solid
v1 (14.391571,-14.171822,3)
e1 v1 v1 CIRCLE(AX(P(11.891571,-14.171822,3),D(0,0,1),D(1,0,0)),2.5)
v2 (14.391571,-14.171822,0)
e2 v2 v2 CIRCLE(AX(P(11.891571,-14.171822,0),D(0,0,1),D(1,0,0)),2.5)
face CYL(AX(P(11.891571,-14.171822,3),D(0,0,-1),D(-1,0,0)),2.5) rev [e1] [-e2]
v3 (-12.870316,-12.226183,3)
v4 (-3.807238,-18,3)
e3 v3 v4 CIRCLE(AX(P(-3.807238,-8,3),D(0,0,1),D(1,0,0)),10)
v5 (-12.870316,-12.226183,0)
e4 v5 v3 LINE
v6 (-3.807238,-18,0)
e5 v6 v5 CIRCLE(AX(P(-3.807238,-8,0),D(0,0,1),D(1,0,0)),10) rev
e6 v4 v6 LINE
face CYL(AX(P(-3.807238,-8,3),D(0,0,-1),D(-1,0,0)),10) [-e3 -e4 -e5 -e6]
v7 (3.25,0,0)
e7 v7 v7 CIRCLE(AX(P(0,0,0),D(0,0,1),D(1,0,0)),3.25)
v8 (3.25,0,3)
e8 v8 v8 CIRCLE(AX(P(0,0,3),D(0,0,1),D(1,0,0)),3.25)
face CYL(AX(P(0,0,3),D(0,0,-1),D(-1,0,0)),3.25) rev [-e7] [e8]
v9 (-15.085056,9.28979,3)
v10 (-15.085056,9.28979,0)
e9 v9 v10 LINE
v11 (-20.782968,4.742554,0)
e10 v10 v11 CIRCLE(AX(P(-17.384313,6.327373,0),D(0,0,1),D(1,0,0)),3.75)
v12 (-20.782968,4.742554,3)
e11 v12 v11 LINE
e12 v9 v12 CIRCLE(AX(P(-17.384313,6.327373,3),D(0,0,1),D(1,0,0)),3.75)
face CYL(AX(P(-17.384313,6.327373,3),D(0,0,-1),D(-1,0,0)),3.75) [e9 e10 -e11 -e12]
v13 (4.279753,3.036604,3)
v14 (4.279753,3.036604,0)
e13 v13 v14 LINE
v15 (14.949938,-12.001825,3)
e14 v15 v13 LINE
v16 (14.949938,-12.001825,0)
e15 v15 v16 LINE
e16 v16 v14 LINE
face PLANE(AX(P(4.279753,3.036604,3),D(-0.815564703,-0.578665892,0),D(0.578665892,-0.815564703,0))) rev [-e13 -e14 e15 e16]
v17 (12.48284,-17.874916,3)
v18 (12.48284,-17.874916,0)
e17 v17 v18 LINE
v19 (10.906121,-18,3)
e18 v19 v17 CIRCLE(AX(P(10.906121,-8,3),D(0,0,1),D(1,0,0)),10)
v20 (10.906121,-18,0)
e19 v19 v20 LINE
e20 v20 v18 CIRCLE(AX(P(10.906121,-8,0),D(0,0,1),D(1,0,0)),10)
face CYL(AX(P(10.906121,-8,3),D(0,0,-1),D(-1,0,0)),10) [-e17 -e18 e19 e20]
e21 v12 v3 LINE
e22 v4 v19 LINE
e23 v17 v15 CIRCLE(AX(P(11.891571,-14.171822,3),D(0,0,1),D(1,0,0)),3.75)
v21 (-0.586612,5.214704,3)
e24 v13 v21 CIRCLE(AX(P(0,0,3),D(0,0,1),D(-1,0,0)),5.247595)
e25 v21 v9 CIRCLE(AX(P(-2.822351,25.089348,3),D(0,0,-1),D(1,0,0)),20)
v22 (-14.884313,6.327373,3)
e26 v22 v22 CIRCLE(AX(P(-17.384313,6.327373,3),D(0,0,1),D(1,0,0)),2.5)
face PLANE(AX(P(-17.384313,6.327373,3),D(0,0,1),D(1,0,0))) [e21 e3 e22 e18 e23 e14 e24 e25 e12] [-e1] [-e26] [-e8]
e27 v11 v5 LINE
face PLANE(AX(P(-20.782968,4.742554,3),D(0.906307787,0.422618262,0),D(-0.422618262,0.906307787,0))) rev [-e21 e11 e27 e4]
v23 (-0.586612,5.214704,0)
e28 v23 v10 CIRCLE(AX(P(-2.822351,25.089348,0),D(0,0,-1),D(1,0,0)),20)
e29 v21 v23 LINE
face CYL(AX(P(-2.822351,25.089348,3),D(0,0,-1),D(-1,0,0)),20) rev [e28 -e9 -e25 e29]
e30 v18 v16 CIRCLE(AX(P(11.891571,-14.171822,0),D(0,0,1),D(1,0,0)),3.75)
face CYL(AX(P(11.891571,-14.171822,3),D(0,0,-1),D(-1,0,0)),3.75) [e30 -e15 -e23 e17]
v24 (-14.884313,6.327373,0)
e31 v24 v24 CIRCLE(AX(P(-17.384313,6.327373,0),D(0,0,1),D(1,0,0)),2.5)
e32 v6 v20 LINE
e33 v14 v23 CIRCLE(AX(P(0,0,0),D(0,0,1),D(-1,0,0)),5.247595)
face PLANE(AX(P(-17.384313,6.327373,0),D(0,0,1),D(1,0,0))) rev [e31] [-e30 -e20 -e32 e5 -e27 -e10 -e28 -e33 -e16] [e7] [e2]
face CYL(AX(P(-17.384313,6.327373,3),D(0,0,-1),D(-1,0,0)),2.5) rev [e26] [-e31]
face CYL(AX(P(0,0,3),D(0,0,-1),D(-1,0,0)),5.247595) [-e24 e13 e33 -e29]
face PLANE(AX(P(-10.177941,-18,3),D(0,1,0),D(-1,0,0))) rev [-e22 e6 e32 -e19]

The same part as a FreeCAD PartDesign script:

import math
import FreeCAD as App
import Part
import Sketcher
Q = App.Units.Quantity


def edges_at(feature, points):
    """Names of the edges that pass closest to the given points."""
    edges = feature.Shape.Edges
    near = lambda p: min(range(len(edges)), key=lambda i: edges[i].distToShape(Part.Vertex(*p))[0])
    return sorted({f"Edge{near(p) + 1}" for p in points})

doc = App.newDocument("Part")
params = doc.addObject("Spreadsheet::Sheet", "Params")
for row, (alias, value) in enumerate([
    ("sketch1_diameter", "5 mm"),
    ("sketch1_radius", "10 mm"),
    ("sketch1_radius2", "20 mm"),
    ("sketch1_diameter2", "6.5 mm"),
    ("sketch1_radius3", "3.75 mm"),
    ("pad1_length", "3 mm"),
    ("fillet_radius", "10 mm"),
], start=1):
    params.set(f"A{row}", alias)
    params.set(f"B{row}", "=" + value)
    params.setAlias(f"B{row}", alias)

body = doc.addObject("PartDesign::Body", "Body")

sketch1 = body.newObject("Sketcher::SketchObject", "Sketch")
sketch1.AttachmentSupport = (doc.getObject("XY_Plane"), [""])
sketch1.MapMode = "FlatFace"
sketch1.addGeometry([
    Part.LineSegment(App.Vector(-10.2, -18, 0), App.Vector(10.9, -18, 0)),
    Part.ArcOfCircle(Part.Circle(App.Vector(10.9, -8, 0), App.Vector(0, 0, 1), 10), math.radians(-90), math.radians(-80.93)),
    Part.ArcOfCircle(Part.Circle(App.Vector(11.9, -14.2, 0), App.Vector(0, 0, 1), 3.7), math.radians(-81), math.radians(35)),
    Part.LineSegment(App.Vector(14.9, -12, 0), App.Vector(4.3, 3, 0)),
    Part.ArcOfCircle(Part.Circle(App.Vector(0, 0, 0), App.Vector(0, 0, 1), 5.2), math.radians(35), math.radians(96)),
    Part.ArcOfCircle(Part.Circle(App.Vector(-2.8, 25.1, 0), App.Vector(0, 0, 1), 20), math.radians(-128), math.radians(-84)),
    Part.ArcOfCircle(Part.Circle(App.Vector(-17.4, 6.3, 0), App.Vector(0, 0, 1), 3.8), math.radians(52), math.radians(205)),
    Part.LineSegment(App.Vector(-20.8, 4.7, 0), App.Vector(-10.2, -18, 0)),
    Part.Circle(App.Vector(11.9, -14.2, 0), App.Vector(0, 0, 1), 2.5),
    Part.Circle(App.Vector(-17.4, 6.3, 0), App.Vector(0, 0, 1), 2.5),
    Part.Circle(App.Vector(0, 0, 0), App.Vector(0, 0, 1), 3.2),
], False)
sketch1.addConstraint([
    Sketcher.Constraint("Tangent", 0, 2, 1, 1),
    Sketcher.Constraint("Tangent", 1, 2, 2, 1),
    Sketcher.Constraint("Tangent", 2, 2, 3, 1),
    Sketcher.Constraint("Tangent", 3, 2, 4, 1),
    Sketcher.Constraint("Tangent", 4, 2, 5, 2),
    Sketcher.Constraint("Tangent", 5, 1, 6, 1),
    Sketcher.Constraint("Tangent", 6, 2, 7, 1),
    Sketcher.Constraint("Coincident", 7, 2, 0, 1),
    Sketcher.Constraint("Horizontal", 0),
    Sketcher.Constraint("Coincident", 4, 3, -1, 1),
    Sketcher.Constraint("Coincident", 10, 3, -1, 1),
    Sketcher.Constraint("Coincident", 8, 3, 2, 3),
    Sketcher.Constraint("Coincident", 9, 3, 6, 3),
    Sketcher.Constraint("Equal", 2, 6),
    Sketcher.Constraint("Equal", 8, 9),
    Sketcher.Constraint("Diameter", 8, 5.0),
    Sketcher.Constraint("Radius", 1, 10.0),
    Sketcher.Constraint("Radius", 5, 20.0),
    Sketcher.Constraint("Diameter", 10, 6.5),
    Sketcher.Constraint("Angle", 7, Q("-65 deg")),
    Sketcher.Constraint("Radius", 2, 3.75),
    Sketcher.Constraint("DistanceY", 1, 3, -1, 1, 8.0),
    Sketcher.Constraint("Radius", 4, 5.247595),
    Sketcher.Constraint("DistanceX", 0, 1, 0, 2, 21.084062),
    Sketcher.Constraint("DistanceY", 3, 2, 4, 2, 2.1781),
    Sketcher.Constraint("DistanceX", 6, 3, 4, 2, 16.797701),
    Sketcher.Constraint("DistanceX", -1, 1, 1, 3, 10.906121),
])
sketch1.setExpression("Constraints[15]", "Params.sketch1_diameter")
sketch1.setExpression("Constraints[16]", "Params.sketch1_radius")
sketch1.setExpression("Constraints[17]", "Params.sketch1_radius2")
sketch1.setExpression("Constraints[18]", "Params.sketch1_diameter2")
sketch1.setExpression("Constraints[20]", "Params.sketch1_radius3")
pad1 = body.newObject("PartDesign::Pad", "Pad")
pad1.Profile = sketch1
pad1.setExpression("Length", "Params.pad1_length")
doc.recompute()

fillet = body.newObject("PartDesign::Fillet", "Fillet")
fillet.Base = (pad1, edges_at(pad1, [(-10.178, -18, 1.5)]))
fillet.setExpression("Radius", "Params.fillet_radius")

doc.recompute()
